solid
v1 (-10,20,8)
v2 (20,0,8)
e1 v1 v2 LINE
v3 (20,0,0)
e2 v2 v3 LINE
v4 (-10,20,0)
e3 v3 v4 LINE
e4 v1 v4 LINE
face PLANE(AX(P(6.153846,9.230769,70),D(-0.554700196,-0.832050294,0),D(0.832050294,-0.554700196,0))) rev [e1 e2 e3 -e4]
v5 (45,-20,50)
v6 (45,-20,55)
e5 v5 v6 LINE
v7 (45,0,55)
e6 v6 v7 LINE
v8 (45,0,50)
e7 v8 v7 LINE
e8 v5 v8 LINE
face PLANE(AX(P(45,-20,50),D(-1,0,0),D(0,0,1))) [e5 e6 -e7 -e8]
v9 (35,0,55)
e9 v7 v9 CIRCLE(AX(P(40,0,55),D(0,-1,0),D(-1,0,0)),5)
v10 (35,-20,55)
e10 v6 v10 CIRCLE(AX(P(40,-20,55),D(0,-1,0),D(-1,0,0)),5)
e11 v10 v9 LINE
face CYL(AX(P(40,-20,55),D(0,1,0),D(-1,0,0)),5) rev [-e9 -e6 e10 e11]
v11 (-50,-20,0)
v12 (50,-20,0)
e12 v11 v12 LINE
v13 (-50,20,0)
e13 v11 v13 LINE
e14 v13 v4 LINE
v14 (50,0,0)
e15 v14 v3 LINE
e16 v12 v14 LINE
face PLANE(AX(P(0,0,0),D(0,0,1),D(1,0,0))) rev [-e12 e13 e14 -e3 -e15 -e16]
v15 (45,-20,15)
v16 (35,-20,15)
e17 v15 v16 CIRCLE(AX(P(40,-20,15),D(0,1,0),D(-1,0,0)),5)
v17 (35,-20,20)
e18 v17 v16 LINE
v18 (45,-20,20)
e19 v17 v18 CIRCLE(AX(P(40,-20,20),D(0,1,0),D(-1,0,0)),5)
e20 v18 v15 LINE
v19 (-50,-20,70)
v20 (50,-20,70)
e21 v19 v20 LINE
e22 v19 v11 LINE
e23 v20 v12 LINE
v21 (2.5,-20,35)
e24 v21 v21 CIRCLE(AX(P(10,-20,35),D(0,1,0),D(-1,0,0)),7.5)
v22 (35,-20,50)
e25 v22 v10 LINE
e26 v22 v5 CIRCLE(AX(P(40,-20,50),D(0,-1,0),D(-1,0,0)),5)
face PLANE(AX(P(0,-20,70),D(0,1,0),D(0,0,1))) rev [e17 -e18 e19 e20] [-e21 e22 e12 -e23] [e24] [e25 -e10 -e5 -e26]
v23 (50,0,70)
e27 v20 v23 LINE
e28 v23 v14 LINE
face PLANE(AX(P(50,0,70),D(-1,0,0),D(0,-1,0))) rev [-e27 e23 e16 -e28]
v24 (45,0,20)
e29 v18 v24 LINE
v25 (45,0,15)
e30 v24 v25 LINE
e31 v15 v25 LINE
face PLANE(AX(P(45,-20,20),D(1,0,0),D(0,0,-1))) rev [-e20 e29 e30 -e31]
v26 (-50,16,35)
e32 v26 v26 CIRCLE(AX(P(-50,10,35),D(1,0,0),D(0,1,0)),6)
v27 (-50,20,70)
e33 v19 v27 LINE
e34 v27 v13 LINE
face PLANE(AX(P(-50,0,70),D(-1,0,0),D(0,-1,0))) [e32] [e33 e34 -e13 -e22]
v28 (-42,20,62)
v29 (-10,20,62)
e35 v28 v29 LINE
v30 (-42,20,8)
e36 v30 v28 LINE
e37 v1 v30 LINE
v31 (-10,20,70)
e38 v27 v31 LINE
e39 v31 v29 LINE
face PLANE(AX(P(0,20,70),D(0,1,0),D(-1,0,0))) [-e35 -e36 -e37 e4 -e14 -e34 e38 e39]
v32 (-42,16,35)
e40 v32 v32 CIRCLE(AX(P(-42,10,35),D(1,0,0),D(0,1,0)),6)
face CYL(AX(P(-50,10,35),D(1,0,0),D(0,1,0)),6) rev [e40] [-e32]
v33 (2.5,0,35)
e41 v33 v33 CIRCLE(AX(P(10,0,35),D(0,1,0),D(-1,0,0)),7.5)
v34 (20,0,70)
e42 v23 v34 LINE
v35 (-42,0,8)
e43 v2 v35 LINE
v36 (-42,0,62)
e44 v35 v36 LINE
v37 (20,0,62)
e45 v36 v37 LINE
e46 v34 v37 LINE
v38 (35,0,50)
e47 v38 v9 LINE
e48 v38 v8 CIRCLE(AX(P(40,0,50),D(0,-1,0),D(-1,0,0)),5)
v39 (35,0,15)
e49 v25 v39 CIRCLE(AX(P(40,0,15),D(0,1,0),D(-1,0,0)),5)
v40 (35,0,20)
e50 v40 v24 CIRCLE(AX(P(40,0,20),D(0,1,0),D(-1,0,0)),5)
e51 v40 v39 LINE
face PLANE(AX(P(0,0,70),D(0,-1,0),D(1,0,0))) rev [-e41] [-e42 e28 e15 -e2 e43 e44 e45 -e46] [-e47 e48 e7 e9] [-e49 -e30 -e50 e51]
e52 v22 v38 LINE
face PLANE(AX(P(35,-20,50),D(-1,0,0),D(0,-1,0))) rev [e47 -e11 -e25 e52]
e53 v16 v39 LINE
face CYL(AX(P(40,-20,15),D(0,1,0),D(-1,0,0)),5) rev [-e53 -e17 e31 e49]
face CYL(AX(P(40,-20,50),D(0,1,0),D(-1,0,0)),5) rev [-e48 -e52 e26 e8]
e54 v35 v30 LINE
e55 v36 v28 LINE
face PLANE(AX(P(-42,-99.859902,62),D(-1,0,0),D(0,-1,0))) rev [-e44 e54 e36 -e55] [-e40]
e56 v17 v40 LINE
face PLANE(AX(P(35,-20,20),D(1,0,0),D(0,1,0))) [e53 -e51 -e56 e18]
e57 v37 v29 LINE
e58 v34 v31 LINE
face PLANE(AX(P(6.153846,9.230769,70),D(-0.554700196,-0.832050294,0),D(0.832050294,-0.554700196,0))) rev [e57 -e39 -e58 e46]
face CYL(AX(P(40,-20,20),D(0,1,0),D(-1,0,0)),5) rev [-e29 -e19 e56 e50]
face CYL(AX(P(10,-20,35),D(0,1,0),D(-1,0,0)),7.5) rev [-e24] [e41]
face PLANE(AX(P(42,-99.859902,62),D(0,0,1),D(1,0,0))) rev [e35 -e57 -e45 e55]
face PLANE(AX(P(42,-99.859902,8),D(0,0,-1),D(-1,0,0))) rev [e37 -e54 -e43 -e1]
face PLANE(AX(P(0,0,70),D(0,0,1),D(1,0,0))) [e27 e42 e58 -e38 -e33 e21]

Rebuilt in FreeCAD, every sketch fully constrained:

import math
import FreeCAD as App
import Part
import Sketcher

V = App.Vector


def add_polygon(sketch, points):
    """Adds a closed chain of lines whose ends are joined by coincident constraints."""
    first, n = sketch.GeometryCount, len(points)
    for a, b in zip(points, points[1:] + points[:1]):
        sketch.addGeometry(Part.LineSegment(App.Vector(*a, 0), App.Vector(*b, 0)), False)
    for i in range(n):
        sketch.addConstraint(Sketcher.Constraint("Coincident", first + i, 2, first + (i + 1) % n, 1))

doc = App.newDocument("Part")
body = doc.addObject("PartDesign::Body", "Body")

# Sketch on XY plane
sketch1 = doc.addObject("Sketcher::SketchObject", "Sketch")
body.addObject(sketch1)
sketch1.AttachmentSupport = (doc.XY_Plane, [""])
sketch1.MapMode = "FlatFace"
add_polygon(sketch1, [(50, -20), (50, 0), (20, 0), (-10, 20), (-50, 20), (-50, -20)])  # lines 0-5
sketch1.addConstraint([
    Sketcher.Constraint("Vertical", 0),
    Sketcher.Constraint("Horizontal", 1),
    Sketcher.Constraint("Horizontal", 3),
    Sketcher.Constraint("Vertical", 4),
    Sketcher.Constraint("Horizontal", 5),
    Sketcher.Constraint("Symmetric", 3, 2, 5, 2, -1, 1),
    Sketcher.Constraint("PointOnObject", 0, 2, -1),
    Sketcher.Constraint("Equal", 3, 4),
    Sketcher.Constraint("DistanceX", 1, 2, 1, 1, 30.0),
    Sketcher.Constraint("DistanceX", 3, 2, 3, 1, 40.0),
    Sketcher.Constraint("DistanceX", 5, 1, 5, 2, 100.0),
])
pad1 = doc.addObject("PartDesign::Pad", "Pad")
body.addObject(pad1)
pad1.Profile = sketch1
pad1.Length = 70

# Sketch on XZ plane
sketch2 = doc.addObject("Sketcher::SketchObject", "Sketch001")
body.addObject(sketch2)
sketch2.AttachmentSupport = (doc.XZ_Plane, [""])
sketch2.MapMode = "FlatFace"
sketch2.AttachmentOffset = App.Placement(V(0, 0, -20), App.Rotation())
add_polygon(sketch2, [(-42, 8), (-42, 62), (42, 62), (42, 8)])  # lines 0-3
sketch2.addConstraint([
    Sketcher.Constraint("Vertical", 0),
    Sketcher.Constraint("Horizontal", 1),
    Sketcher.Constraint("Vertical", 2),
    Sketcher.Constraint("Horizontal", 3),
    Sketcher.Constraint("DistanceX", 1, 1, 1, 2, 84.0),
    Sketcher.Constraint("DistanceY", 0, 1, 0, 2, 54.0),
    Sketcher.Constraint("DistanceX", 0, 2, -1, 1, 42.0),
    Sketcher.Constraint("DistanceY", -1, 1, 0, 2, 62.0),
])
pocket1 = doc.addObject("PartDesign::Pocket", "Pocket")
body.addObject(pocket1)
pocket1.Profile = sketch2
pocket1.Length = 20
pocket1.Reversed = True

# Sketch on XZ plane
sketch3 = doc.addObject("Sketcher::SketchObject", "Sketch002")
body.addObject(sketch3)
sketch3.AttachmentSupport = (doc.XZ_Plane, [""])
sketch3.MapMode = "FlatFace"
sketch3.addGeometry(Part.Circle(V(10, 35, 0), V(0, 0, 1), 7.5), False)
sketch3.addConstraint([
    Sketcher.Constraint("Diameter", 0, 15.0),
    Sketcher.Constraint("DistanceX", -1, 1, 0, 3, 10.0),
    Sketcher.Constraint("DistanceY", -1, 1, 0, 3, 35.0),
])
pocket2 = doc.addObject("PartDesign::Pocket", "Pocket001")
body.addObject(pocket2)
pocket2.Profile = sketch3
pocket2.Type = "ThroughAll"
pocket2.Reversed = True

# Sketch on XZ plane
sketch4 = doc.addObject("Sketcher::SketchObject", "Sketch003")
body.addObject(sketch4)
sketch4.AttachmentSupport = (doc.XZ_Plane, [""])
sketch4.MapMode = "FlatFace"
sketch4.addGeometry([
    Part.LineSegment(V(35, 15, 0), V(35, 20, 0)),
    Part.ArcOfCircle(Part.Circle(V(40, 20, 0), V(0, 0, 1), 5), math.radians(0), math.radians(180)),
    Part.LineSegment(V(45, 20, 0), V(45, 15, 0)),
    Part.ArcOfCircle(Part.Circle(V(40, 15, 0), V(0, 0, 1), 5), math.radians(180), math.radians(360)),
], False)
sketch4.addConstraint([
    Sketcher.Constraint("Tangent", 0, 2, 1, 2),
    Sketcher.Constraint("Tangent", 1, 1, 2, 1),
    Sketcher.Constraint("Tangent", 2, 2, 3, 2),
    Sketcher.Constraint("Tangent", 3, 1, 0, 1),
    Sketcher.Constraint("Vertical", 0),
    Sketcher.Constraint("Vertical", 2),
    Sketcher.Constraint("Radius", 1, 5.0),
    Sketcher.Constraint("DistanceY", 0, 1, 0, 2, 5.0),
    Sketcher.Constraint("DistanceX", -1, 1, 1, 3, 40.0),
    Sketcher.Constraint("DistanceY", -1, 1, 1, 3, 20.0),
])
pocket3 = doc.addObject("PartDesign::Pocket", "Pocket002")
body.addObject(pocket3)
pocket3.Profile = sketch4
pocket3.Type = "ThroughAll"
pocket3.Reversed = True
doc.recompute()

datumplane = doc.addObject("PartDesign::Plane", "DatumPlane")
body.addObject(datumplane)
datumplane.AttachmentSupport = (doc.XY_Plane, [""])
datumplane.MapMode = "FlatFace"
datumplane.AttachmentOffset = App.Placement(V(0, 0, 35), App.Rotation())
mirrored = doc.addObject("PartDesign::Mirrored", "Mirrored")
body.addObject(mirrored)
mirrored.Originals = [pocket3]
mirrored.MirrorPlane = (datumplane, [""])
body.Tip = mirrored

# Sketch on YZ plane
sketch5 = doc.addObject("Sketcher::SketchObject", "Sketch004")
body.addObject(sketch5)
sketch5.AttachmentSupport = (doc.YZ_Plane, [""])
sketch5.MapMode = "FlatFace"
sketch5.AttachmentOffset = App.Placement(V(0, 0, -42), App.Rotation())
sketch5.addGeometry(Part.Circle(V(10, 35, 0), V(0, 0, 1), 6), False)
sketch5.addConstraint([
    Sketcher.Constraint("Diameter", 0, 12.0),
    Sketcher.Constraint("DistanceX", -1, 1, 0, 3, 10.0),
    Sketcher.Constraint("DistanceY", -1, 1, 0, 3, 35.0),
])
pocket4 = doc.addObject("PartDesign::Pocket", "Pocket003")
body.addObject(pocket4)
pocket4.Profile = sketch5
pocket4.Type = "ThroughAll"

doc.recompute()
